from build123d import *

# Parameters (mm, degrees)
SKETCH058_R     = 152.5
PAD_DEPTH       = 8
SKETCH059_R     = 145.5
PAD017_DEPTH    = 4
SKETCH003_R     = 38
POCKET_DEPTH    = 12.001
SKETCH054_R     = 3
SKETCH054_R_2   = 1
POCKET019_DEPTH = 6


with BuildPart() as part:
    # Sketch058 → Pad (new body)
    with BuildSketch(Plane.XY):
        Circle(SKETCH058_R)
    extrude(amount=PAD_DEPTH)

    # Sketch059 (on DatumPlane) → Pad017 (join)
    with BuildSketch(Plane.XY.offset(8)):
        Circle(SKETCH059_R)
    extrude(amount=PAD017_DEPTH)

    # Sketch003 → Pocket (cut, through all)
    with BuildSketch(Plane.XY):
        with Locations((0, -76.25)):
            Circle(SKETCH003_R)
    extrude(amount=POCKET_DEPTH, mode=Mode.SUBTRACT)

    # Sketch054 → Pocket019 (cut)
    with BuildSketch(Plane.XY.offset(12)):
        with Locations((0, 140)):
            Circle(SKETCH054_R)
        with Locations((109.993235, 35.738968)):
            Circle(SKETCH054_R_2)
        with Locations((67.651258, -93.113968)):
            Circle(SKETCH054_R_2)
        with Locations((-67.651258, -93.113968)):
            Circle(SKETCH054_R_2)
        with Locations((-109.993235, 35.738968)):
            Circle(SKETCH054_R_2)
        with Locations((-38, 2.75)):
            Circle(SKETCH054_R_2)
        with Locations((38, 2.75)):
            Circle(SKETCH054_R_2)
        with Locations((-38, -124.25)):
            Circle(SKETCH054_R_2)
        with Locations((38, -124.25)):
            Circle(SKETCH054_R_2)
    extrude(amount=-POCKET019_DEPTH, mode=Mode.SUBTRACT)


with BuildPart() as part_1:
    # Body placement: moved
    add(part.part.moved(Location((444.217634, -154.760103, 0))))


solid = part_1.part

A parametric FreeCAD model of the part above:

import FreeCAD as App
import Part
import Sketcher
from FreeCAD import Vector
Q = App.Units.Quantity

doc = App.newDocument("Part")
body = doc.addObject("PartDesign::Body", "Body")

# Sketch on XY plane
sketch1 = body.newObject("Sketcher::SketchObject", "Sketch")
sketch1.AttachmentSupport = (doc.getObject("XY_Plane"), [""])
sketch1.MapMode = "FlatFace"
sketch1.addGeometry(Part.Circle(Vector(0, 0, 0), Vector(0, 0, 1), 152), False)
sketch1.addConstraint(Sketcher.Constraint("Coincident", 0, 3, -1, 1))
sketch1.addConstraint(Sketcher.Constraint("Diameter", 0, Q("305 mm")))
pad1 = body.newObject("PartDesign::Pad", "Pad")
pad1.Profile = sketch1
pad1.Length = 8

# Sketch on XY plane
sketch2 = body.newObject("Sketcher::SketchObject", "Sketch001")
sketch2.AttachmentSupport = (doc.getObject("XY_Plane"), [""])
sketch2.MapMode = "FlatFace"
sketch2.AttachmentOffset = App.Placement(Vector(0, 0, 8), App.Rotation())
sketch2.addGeometry(Part.Circle(Vector(0, 0, 0), Vector(0, 0, 1), 146), False)
sketch2.addConstraint(Sketcher.Constraint("Coincident", 0, 3, -1, 1))
sketch2.addConstraint(Sketcher.Constraint("Diameter", 0, Q("291 mm")))
pad2 = body.newObject("PartDesign::Pad", "Pad001")
pad2.Profile = sketch2
pad2.Length = 4

# Sketch on XY plane
sketch3 = body.newObject("Sketcher::SketchObject", "Sketch002")
sketch3.AttachmentSupport = (doc.getObject("XY_Plane"), [""])
sketch3.MapMode = "FlatFace"
sketch3.addGeometry(Part.Circle(Vector(0, -76, 0), Vector(0, 0, 1), 38), False)
sketch3.addConstraint(Sketcher.Constraint("PointOnObject", 0, 3, -2))
sketch3.addConstraint(Sketcher.Constraint("Diameter", 0, Q("76 mm")))
sketch3.addConstraint(Sketcher.Constraint("DistanceY", 0, 3, -1, 1, Q("76.25 mm")))
pocket1 = body.newObject("PartDesign::Pocket", "Pocket")
pocket1.Profile = sketch3
pocket1.Type = "ThroughAll"
pocket1.Reversed = True

# Sketch on XY plane
sketch4 = body.newObject("Sketcher::SketchObject", "Sketch003")
sketch4.AttachmentSupport = (doc.getObject("XY_Plane"), [""])
sketch4.MapMode = "FlatFace"
sketch4.AttachmentOffset = App.Placement(Vector(0, 0, 12), App.Rotation())
sketch4.addGeometry(Part.Circle(Vector(0, 140, 0), Vector(0, 0, 1), 3), False)
sketch4.addGeometry(Part.Circle(Vector(110, 35.7, 0), Vector(0, 0, 1), 1), False)
sketch4.addGeometry(Part.Circle(Vector(67.7, -93.1, 0), Vector(0, 0, 1), 1), False)
sketch4.addGeometry(Part.Circle(Vector(-67.7, -93.1, 0), Vector(0, 0, 1), 1), False)
sketch4.addGeometry(Part.Circle(Vector(-110, 35.7, 0), Vector(0, 0, 1), 1), False)
sketch4.addGeometry(Part.Circle(Vector(-38, 2.8, 0), Vector(0, 0, 1), 1), False)
sketch4.addGeometry(Part.Circle(Vector(38, 2.8, 0), Vector(0, 0, 1), 1), False)
sketch4.addGeometry(Part.Circle(Vector(-38, -124.2, 0), Vector(0, 0, 1), 1), False)
sketch4.addGeometry(Part.Circle(Vector(38, -124.2, 0), Vector(0, 0, 1), 1), False)
sketch4.addConstraint(Sketcher.Constraint("Equal", 1, 2))
sketch4.addConstraint(Sketcher.Constraint("Equal", 2, 3))
sketch4.addConstraint(Sketcher.Constraint("Equal", 3, 4))
sketch4.addConstraint(Sketcher.Constraint("Equal", 4, 5))
sketch4.addConstraint(Sketcher.Constraint("Equal", 5, 6))
sketch4.addConstraint(Sketcher.Constraint("Equal", 6, 7))
sketch4.addConstraint(Sketcher.Constraint("Equal", 7, 8))
sketch4.addConstraint(Sketcher.Constraint("Symmetric", 2, 3, 3, 3, -2))
sketch4.addConstraint(Sketcher.Constraint("Symmetric", 1, 3, 4, 3, -2))
sketch4.addConstraint(Sketcher.Constraint("Symmetric", 5, 3, 6, 3, -2))
sketch4.addConstraint(Sketcher.Constraint("Symmetric", 7, 3, 8, 3, -2))
sketch4.addConstraint(Sketcher.Constraint("PointOnObject", 0, 3, -2))
sketch4.addConstraint(Sketcher.Constraint("Vertical", 5, 3, 7, 3))
sketch4.addConstraint(Sketcher.Constraint("Diameter", 0, Q("6 mm")))
sketch4.addConstraint(Sketcher.Constraint("Diameter", 1, Q("2 mm")))
sketch4.addConstraint(Sketcher.Constraint("DistanceY", -1, 1, 0, 3, Q("140 mm")))
sketch4.addConstraint(Sketcher.Constraint("DistanceX", 5, 3, -1, 1, Q("38 mm")))
sketch4.addConstraint(Sketcher.Constraint("DistanceY", 7, 3, 5, 3, Q("127 mm")))
sketch4.addConstraint(Sketcher.Constraint("DistanceY", -1, 1, 5, 3, Q("2.75 mm")))
sketch4.addConstraint(Sketcher.Constraint("DistanceX", -1, 1, 2, 3, Q("67.651258 mm")))
sketch4.addConstraint(Sketcher.Constraint("DistanceY", 2, 3, -1, 1, Q("93.113968 mm")))
sketch4.addConstraint(Sketcher.Constraint("DistanceY", 1, 3, 0, 3, Q("104.261032 mm")))
sketch4.addConstraint(Sketcher.Constraint("DistanceX", 4, 3, 1, 3, Q("219.98647 mm")))
pocket2 = body.newObject("PartDesign::Pocket", "Pocket001")
pocket2.Profile = sketch4
pocket2.Length = 6
body2 = doc.addObject("PartDesign::Body", "Body001")
doc.recompute()

body.Placement = App.Placement(Vector(444.217634, -154.760103, 0), App.Rotation(Vector(0, 0, 1), 0))
boolean = body2.newObject("PartDesign::Boolean", "Boolean")
boolean.Type = "Fuse"
boolean.addObjects([body])

doc.recompute()
